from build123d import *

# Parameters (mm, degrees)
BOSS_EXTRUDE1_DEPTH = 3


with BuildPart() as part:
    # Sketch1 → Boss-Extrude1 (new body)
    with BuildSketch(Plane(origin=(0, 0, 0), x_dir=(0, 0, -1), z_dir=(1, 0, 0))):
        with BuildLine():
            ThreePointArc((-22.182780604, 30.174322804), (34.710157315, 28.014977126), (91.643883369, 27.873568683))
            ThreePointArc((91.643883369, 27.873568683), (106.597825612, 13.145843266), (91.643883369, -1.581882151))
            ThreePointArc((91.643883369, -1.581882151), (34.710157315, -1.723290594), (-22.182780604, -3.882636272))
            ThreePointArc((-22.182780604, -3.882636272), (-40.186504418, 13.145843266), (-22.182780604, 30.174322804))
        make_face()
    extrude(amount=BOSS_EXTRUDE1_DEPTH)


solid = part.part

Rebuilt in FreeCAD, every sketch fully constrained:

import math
import FreeCAD as App
import Part
import Sketcher

V = App.Vector
Q = App.Units.Quantity

doc = App.newDocument("Part")
params = doc.addObject("Spreadsheet::Sheet", "Params")
for row, (alias, value) in enumerate([
    ("sketch1_radius", "1606 mm"),
    ("pad1_length", "3 mm"),
], start=1):
    params.set(f"A{row}", alias)
    params.set(f"B{row}", "=" + value)
    params.setAlias(f"B{row}", alias)

body = doc.addObject("PartDesign::Body", "Body")

# Sketch on YZ plane
sketch1 = body.newObject("Sketcher::SketchObject", "Sketch")
sketch1.AttachmentSupport = (doc.getObject("YZ_Plane"), [""])
sketch1.MapMode = "FlatFace"
sketch1.addGeometry(Part.ArcOfCircle(Part.Circle(V(1633.687007, -67.165264, 0), V(0, 0, 1), 1606), math.radians(176.810766), math.radians(180.873335)), False)
sketch1.addGeometry(Part.ArcOfCircle(Part.Circle(V(13.145843, 23.131611, 0), V(0, 0, 1), 17.054894), math.radians(-3.189234), math.radians(183.189234)), False)
sketch1.addGeometry(Part.ArcOfCircle(Part.Circle(V(-1607.39532, -67.165264, 0), V(0, 0, 1), 1606), math.radians(-0.873335), math.radians(3.189234)), False)
sketch1.addGeometry(Part.ArcOfCircle(Part.Circle(V(13.145843, -91.868389, 0), V(0, 0, 1), 14.729436), math.radians(179.126665), math.radians(360.873335)), False)
sketch1.addConstraint(Sketcher.Constraint("Tangent", 0, 1, 1, 1))
sketch1.addConstraint(Sketcher.Constraint("Tangent", 1, 2, 2, 2))
sketch1.addConstraint(Sketcher.Constraint("Tangent", 2, 1, 3, 1))
sketch1.addConstraint(Sketcher.Constraint("Tangent", 3, 2, 0, 2))
sketch1.addConstraint(Sketcher.Constraint("Equal", 0, 2))
sketch1.addConstraint(Sketcher.Constraint("Horizontal", 0, 3, 2, 3))
sketch1.addConstraint(Sketcher.Constraint("Radius", 0, Q("1606 mm")))
sketch1.addConstraint(Sketcher.Constraint("DistanceY", 3, 3, 1, 3, Q("115 mm")))
sketch1.addConstraint(Sketcher.Constraint("Radius", 1, Q("17.054894 mm")))
sketch1.addConstraint(Sketcher.Constraint("Radius", 3, Q("14.729436 mm")))
sketch1.addConstraint(Sketcher.Constraint("DistanceY", -1, 1, 1, 3, Q("23.131611 mm")))
sketch1.addConstraint(Sketcher.Constraint("DistanceX", 2, 3, -1, 1, Q("1607.39532 mm")))
sketch1.setExpression("Constraints[6]", "Params.sketch1_radius")
pad1 = body.newObject("PartDesign::Pad", "Pad")
pad1.Profile = sketch1
pad1.setExpression("Length", "Params.pad1_length")

doc.recompute()
